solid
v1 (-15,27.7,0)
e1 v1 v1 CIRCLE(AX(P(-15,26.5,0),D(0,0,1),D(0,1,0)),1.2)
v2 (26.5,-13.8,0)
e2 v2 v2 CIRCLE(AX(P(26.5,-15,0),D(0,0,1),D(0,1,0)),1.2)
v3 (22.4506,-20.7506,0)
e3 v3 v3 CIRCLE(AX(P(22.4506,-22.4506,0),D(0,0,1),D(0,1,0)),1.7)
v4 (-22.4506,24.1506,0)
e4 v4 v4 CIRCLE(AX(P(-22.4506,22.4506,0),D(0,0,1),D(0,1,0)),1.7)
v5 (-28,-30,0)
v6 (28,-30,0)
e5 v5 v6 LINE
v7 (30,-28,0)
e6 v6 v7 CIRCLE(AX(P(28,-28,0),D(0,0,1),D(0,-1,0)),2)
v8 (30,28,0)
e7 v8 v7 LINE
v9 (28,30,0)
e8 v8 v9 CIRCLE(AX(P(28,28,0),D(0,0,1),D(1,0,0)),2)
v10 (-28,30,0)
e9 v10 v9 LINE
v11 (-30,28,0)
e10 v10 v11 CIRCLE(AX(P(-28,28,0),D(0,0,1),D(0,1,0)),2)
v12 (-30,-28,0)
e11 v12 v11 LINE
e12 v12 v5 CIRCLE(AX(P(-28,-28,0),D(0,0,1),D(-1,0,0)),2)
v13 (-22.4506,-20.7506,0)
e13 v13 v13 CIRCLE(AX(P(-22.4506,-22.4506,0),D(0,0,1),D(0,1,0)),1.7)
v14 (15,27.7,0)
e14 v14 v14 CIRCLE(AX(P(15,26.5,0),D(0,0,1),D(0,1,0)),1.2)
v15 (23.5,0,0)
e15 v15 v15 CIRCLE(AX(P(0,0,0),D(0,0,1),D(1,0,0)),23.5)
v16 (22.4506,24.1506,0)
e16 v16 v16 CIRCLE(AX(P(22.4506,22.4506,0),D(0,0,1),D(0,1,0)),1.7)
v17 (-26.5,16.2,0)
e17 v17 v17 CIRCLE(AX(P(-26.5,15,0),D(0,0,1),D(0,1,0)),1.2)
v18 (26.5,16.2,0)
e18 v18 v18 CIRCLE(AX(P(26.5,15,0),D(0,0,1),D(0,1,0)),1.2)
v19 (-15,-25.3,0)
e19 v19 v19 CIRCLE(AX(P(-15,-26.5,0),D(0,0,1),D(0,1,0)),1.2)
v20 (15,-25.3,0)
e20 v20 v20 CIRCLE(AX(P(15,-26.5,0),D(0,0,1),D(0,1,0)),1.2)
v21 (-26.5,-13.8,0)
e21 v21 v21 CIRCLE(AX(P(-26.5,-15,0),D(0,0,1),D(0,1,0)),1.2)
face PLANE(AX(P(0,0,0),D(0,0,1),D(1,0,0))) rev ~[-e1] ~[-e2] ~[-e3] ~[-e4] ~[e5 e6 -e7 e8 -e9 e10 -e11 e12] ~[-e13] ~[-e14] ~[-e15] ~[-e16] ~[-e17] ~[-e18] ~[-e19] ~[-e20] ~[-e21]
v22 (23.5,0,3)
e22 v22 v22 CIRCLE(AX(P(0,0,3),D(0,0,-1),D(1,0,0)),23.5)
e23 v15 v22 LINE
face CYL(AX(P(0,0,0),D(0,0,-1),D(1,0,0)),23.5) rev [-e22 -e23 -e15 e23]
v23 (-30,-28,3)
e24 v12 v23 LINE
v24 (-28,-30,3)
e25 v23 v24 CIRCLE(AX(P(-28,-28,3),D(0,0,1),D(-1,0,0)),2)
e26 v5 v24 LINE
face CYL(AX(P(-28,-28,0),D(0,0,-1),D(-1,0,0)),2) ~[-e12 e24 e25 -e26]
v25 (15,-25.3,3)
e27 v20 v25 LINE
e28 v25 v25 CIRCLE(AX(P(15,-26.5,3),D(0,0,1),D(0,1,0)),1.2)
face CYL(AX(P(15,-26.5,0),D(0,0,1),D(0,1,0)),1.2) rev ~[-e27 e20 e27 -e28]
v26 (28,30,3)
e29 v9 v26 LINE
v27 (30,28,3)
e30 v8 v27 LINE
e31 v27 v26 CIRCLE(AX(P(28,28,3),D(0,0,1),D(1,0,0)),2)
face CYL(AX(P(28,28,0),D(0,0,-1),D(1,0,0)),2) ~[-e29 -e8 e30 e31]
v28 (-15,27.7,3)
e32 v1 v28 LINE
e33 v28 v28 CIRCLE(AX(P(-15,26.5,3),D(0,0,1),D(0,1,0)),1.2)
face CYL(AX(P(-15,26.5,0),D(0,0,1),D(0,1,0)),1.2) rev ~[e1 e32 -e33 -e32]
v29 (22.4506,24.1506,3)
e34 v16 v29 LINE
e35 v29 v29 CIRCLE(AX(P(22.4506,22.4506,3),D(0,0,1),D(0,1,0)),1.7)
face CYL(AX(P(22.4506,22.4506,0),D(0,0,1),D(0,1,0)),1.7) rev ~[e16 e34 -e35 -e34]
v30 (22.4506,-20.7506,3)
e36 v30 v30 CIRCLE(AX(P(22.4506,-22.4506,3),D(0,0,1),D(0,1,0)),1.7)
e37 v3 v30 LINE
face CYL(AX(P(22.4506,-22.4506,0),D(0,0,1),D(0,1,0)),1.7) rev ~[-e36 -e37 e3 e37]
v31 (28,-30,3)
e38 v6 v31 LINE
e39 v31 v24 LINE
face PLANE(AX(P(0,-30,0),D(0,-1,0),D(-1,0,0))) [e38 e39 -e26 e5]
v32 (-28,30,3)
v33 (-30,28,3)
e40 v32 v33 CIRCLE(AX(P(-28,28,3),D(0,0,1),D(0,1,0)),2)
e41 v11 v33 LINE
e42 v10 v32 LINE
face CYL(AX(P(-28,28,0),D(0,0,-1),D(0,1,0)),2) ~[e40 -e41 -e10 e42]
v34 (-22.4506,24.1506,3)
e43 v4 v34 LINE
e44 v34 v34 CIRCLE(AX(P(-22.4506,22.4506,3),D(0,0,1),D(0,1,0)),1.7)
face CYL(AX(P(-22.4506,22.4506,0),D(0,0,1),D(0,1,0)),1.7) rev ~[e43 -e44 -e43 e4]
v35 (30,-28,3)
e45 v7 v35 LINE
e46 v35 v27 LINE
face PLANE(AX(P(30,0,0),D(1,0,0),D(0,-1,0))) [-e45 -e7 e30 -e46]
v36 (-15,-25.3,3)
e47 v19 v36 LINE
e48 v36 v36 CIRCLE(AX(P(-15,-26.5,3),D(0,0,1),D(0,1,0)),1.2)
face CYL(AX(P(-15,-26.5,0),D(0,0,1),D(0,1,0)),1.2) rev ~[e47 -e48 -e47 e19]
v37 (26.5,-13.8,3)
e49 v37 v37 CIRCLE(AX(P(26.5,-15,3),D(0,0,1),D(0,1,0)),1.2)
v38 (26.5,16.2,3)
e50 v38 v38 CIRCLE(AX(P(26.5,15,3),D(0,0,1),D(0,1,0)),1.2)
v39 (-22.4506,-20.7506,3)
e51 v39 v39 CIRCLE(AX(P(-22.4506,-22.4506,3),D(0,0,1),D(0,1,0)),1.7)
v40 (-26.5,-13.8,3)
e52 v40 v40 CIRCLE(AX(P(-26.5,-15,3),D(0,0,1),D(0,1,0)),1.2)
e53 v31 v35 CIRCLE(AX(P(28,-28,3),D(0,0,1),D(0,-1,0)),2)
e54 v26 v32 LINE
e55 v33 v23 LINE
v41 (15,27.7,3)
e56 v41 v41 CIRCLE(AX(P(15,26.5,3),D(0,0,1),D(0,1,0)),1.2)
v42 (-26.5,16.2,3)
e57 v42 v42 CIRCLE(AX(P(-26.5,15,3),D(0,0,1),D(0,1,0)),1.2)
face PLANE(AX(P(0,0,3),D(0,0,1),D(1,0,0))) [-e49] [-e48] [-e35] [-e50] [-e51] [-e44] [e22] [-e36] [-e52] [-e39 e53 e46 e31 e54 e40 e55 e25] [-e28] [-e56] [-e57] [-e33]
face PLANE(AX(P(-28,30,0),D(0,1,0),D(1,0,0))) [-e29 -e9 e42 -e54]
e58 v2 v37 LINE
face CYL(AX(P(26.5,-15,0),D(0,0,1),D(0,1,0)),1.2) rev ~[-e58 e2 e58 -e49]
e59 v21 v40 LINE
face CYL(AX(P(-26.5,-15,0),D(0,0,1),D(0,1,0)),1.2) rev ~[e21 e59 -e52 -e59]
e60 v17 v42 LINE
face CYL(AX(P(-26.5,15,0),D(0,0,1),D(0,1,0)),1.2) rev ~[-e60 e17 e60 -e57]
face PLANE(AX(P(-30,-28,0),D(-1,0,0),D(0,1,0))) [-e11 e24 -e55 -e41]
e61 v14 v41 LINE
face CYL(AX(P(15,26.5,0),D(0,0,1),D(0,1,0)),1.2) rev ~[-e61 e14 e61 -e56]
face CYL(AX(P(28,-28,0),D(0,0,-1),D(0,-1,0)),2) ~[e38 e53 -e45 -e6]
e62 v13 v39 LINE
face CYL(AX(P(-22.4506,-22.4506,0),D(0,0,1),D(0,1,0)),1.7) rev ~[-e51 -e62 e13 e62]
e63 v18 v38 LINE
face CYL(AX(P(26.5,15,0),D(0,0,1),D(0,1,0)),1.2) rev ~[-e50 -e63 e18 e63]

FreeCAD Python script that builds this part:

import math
import FreeCAD as App
import Part
import Sketcher

V = App.Vector

doc = App.newDocument("Part")
body = doc.addObject("PartDesign::Body", "Body")

sketch1 = body.newObject("Sketcher::SketchObject", "Sketch")
sketch1.AttachmentSupport = (doc.getObject("XY_Plane"), [""])
sketch1.MapMode = "FlatFace"
sketch1.addGeometry([
    Part.LineSegment(V(-28, -30, 0), V(28, -30, 0)),
    Part.ArcOfCircle(Part.Circle(V(28, -28, 0), V(0, 0, 1), 2), math.radians(-90), math.radians(0)),
    Part.LineSegment(V(30, -28, 0), V(30, 28, 0)),
    Part.ArcOfCircle(Part.Circle(V(28, 28, 0), V(0, 0, 1), 2), math.radians(0), math.radians(90)),
    Part.LineSegment(V(28, 30, 0), V(-28, 30, 0)),
    Part.ArcOfCircle(Part.Circle(V(-28, 28, 0), V(0, 0, 1), 2), math.radians(90), math.radians(180)),
    Part.LineSegment(V(-30, 28, 0), V(-30, -28, 0)),
    Part.ArcOfCircle(Part.Circle(V(-28, -28, 0), V(0, 0, 1), 2), math.radians(180), math.radians(270)),
    Part.Circle(V(0, 0, 0), V(0, 0, 1), 23.5),
], False)
sketch1.addConstraint([
    Sketcher.Constraint("Tangent", 0, 2, 1, 1),
    Sketcher.Constraint("Tangent", 1, 2, 2, 1),
    Sketcher.Constraint("Tangent", 2, 2, 3, 1),
    Sketcher.Constraint("Tangent", 3, 2, 4, 1),
    Sketcher.Constraint("Tangent", 4, 2, 5, 1),
    Sketcher.Constraint("Tangent", 5, 2, 6, 1),
    Sketcher.Constraint("Tangent", 6, 2, 7, 1),
    Sketcher.Constraint("Tangent", 7, 2, 0, 1),
    Sketcher.Constraint("Horizontal", 0),
    Sketcher.Constraint("Vertical", 2),
    Sketcher.Constraint("Horizontal", 4),
    Sketcher.Constraint("Vertical", 6),
    Sketcher.Constraint("Coincident", 8, 3, -1, 1),
    Sketcher.Constraint("Equal", 1, 3),
    Sketcher.Constraint("Equal", 3, 5),
    Sketcher.Constraint("Equal", 5, 7),
    Sketcher.Constraint("Symmetric", 1, 3, 5, 3, -1, 1),
    Sketcher.Constraint("Equal", 4, 2),
    Sketcher.Constraint("Diameter", 8, 47.0),
    Sketcher.Constraint("Radius", 1, 2.0),
    Sketcher.Constraint("DistanceX", 0, 1, 0, 2, 56.0),
])
pad1 = body.newObject("PartDesign::Pad", "Pad")
pad1.Profile = sketch1
pad1.Length = 3

sketch2 = body.newObject("Sketcher::SketchObject", "Sketch001")
sketch2.AttachmentSupport = (doc.getObject("XY_Plane"), [""])
sketch2.MapMode = "FlatFace"
sketch2.addGeometry([
    Part.Circle(V(15, -26.5, 0), V(0, 0, 1), 1.2),
    Part.Circle(V(26.5, -15, 0), V(0, 0, 1), 1.2),
    Part.Circle(V(-15, -26.5, 0), V(0, 0, 1), 1.2),
    Part.Circle(V(-26.5, -15, 0), V(0, 0, 1), 1.2),
    Part.Circle(V(-26.5, 15, 0), V(0, 0, 1), 1.2),
    Part.Circle(V(-15, 26.5, 0), V(0, 0, 1), 1.2),
    Part.Circle(V(15, 26.5, 0), V(0, 0, 1), 1.2),
    Part.Circle(V(26.5, 15, 0), V(0, 0, 1), 1.2),
], False)
sketch2.addConstraint([
    Sketcher.Constraint("Equal", 0, 1),
    Sketcher.Constraint("Equal", 1, 2),
    Sketcher.Constraint("Equal", 2, 3),
    Sketcher.Constraint("Equal", 3, 4),
    Sketcher.Constraint("Equal", 4, 5),
    Sketcher.Constraint("Equal", 5, 6),
    Sketcher.Constraint("Equal", 6, 7),
    Sketcher.Constraint("Symmetric", 1, 3, 4, 3, -1, 1),
    Sketcher.Constraint("Symmetric", 0, 3, 5, 3, -1, 1),
    Sketcher.Constraint("Symmetric", 2, 3, 6, 3, -1, 1),
    Sketcher.Constraint("Symmetric", 3, 3, 7, 3, -1, 1),
    Sketcher.Constraint("Symmetric", 0, 3, 2, 3, -2),
    Sketcher.Constraint("Symmetric", 1, 3, 3, 3, -2),
    Sketcher.Constraint("Diameter", 0, 2.4),
    Sketcher.Constraint("DistanceX", -1, 1, 0, 3, 15.0),
    Sketcher.Constraint("DistanceY", 1, 3, -1, 1, 15.0),
    Sketcher.Constraint("DistanceX", 3, 3, 1, 3, 53.0),
    Sketcher.Constraint("DistanceY", 2, 3, 5, 3, 53.0),
])
doc.recompute()
hole = body.newObject("PartDesign::Hole", "Hole")
hole.Profile = sketch2
hole.ThreadType = "None"
hole.Diameter = 2.4
hole.DepthType = "ThroughAll"
hole.Reversed = True

sketch3 = body.newObject("Sketcher::SketchObject", "Sketch002")
sketch3.AttachmentSupport = (doc.getObject("XY_Plane"), [""])
sketch3.MapMode = "FlatFace"
sketch3.addGeometry([
    Part.Circle(V(-22.5, 22.5, 0), V(0, 0, 1), 1.7),
    Part.Circle(V(-22.5, -22.5, 0), V(0, 0, 1), 1.7),
    Part.Circle(V(22.5, -22.5, 0), V(0, 0, 1), 1.7),
    Part.Circle(V(22.5, 22.5, 0), V(0, 0, 1), 1.7),
], False)
sketch3.addConstraint([
    Sketcher.Constraint("Equal", 0, 1),
    Sketcher.Constraint("Equal", 1, 2),
    Sketcher.Constraint("Equal", 2, 3),
    Sketcher.Constraint("Symmetric", 0, 3, 2, 3, -1, 1),
    Sketcher.Constraint("Symmetric", 1, 3, 3, 3, -1, 1),
    Sketcher.Constraint("Symmetric", 1, 3, 2, 3, -2),
    Sketcher.Constraint("Diameter", 0, 3.4),
    Sketcher.Constraint("DistanceX", 0, 3, -1, 1, 22.4506),
    Sketcher.Constraint("DistanceY", -1, 1, 0, 3, 22.4506),
])
doc.recompute()
hole2 = body.newObject("PartDesign::Hole", "Hole001")
hole2.Profile = sketch3
hole2.ThreadType = "None"
hole2.Diameter = 3.4
hole2.DepthType = "ThroughAll"
hole2.Reversed = True

doc.recompute()
